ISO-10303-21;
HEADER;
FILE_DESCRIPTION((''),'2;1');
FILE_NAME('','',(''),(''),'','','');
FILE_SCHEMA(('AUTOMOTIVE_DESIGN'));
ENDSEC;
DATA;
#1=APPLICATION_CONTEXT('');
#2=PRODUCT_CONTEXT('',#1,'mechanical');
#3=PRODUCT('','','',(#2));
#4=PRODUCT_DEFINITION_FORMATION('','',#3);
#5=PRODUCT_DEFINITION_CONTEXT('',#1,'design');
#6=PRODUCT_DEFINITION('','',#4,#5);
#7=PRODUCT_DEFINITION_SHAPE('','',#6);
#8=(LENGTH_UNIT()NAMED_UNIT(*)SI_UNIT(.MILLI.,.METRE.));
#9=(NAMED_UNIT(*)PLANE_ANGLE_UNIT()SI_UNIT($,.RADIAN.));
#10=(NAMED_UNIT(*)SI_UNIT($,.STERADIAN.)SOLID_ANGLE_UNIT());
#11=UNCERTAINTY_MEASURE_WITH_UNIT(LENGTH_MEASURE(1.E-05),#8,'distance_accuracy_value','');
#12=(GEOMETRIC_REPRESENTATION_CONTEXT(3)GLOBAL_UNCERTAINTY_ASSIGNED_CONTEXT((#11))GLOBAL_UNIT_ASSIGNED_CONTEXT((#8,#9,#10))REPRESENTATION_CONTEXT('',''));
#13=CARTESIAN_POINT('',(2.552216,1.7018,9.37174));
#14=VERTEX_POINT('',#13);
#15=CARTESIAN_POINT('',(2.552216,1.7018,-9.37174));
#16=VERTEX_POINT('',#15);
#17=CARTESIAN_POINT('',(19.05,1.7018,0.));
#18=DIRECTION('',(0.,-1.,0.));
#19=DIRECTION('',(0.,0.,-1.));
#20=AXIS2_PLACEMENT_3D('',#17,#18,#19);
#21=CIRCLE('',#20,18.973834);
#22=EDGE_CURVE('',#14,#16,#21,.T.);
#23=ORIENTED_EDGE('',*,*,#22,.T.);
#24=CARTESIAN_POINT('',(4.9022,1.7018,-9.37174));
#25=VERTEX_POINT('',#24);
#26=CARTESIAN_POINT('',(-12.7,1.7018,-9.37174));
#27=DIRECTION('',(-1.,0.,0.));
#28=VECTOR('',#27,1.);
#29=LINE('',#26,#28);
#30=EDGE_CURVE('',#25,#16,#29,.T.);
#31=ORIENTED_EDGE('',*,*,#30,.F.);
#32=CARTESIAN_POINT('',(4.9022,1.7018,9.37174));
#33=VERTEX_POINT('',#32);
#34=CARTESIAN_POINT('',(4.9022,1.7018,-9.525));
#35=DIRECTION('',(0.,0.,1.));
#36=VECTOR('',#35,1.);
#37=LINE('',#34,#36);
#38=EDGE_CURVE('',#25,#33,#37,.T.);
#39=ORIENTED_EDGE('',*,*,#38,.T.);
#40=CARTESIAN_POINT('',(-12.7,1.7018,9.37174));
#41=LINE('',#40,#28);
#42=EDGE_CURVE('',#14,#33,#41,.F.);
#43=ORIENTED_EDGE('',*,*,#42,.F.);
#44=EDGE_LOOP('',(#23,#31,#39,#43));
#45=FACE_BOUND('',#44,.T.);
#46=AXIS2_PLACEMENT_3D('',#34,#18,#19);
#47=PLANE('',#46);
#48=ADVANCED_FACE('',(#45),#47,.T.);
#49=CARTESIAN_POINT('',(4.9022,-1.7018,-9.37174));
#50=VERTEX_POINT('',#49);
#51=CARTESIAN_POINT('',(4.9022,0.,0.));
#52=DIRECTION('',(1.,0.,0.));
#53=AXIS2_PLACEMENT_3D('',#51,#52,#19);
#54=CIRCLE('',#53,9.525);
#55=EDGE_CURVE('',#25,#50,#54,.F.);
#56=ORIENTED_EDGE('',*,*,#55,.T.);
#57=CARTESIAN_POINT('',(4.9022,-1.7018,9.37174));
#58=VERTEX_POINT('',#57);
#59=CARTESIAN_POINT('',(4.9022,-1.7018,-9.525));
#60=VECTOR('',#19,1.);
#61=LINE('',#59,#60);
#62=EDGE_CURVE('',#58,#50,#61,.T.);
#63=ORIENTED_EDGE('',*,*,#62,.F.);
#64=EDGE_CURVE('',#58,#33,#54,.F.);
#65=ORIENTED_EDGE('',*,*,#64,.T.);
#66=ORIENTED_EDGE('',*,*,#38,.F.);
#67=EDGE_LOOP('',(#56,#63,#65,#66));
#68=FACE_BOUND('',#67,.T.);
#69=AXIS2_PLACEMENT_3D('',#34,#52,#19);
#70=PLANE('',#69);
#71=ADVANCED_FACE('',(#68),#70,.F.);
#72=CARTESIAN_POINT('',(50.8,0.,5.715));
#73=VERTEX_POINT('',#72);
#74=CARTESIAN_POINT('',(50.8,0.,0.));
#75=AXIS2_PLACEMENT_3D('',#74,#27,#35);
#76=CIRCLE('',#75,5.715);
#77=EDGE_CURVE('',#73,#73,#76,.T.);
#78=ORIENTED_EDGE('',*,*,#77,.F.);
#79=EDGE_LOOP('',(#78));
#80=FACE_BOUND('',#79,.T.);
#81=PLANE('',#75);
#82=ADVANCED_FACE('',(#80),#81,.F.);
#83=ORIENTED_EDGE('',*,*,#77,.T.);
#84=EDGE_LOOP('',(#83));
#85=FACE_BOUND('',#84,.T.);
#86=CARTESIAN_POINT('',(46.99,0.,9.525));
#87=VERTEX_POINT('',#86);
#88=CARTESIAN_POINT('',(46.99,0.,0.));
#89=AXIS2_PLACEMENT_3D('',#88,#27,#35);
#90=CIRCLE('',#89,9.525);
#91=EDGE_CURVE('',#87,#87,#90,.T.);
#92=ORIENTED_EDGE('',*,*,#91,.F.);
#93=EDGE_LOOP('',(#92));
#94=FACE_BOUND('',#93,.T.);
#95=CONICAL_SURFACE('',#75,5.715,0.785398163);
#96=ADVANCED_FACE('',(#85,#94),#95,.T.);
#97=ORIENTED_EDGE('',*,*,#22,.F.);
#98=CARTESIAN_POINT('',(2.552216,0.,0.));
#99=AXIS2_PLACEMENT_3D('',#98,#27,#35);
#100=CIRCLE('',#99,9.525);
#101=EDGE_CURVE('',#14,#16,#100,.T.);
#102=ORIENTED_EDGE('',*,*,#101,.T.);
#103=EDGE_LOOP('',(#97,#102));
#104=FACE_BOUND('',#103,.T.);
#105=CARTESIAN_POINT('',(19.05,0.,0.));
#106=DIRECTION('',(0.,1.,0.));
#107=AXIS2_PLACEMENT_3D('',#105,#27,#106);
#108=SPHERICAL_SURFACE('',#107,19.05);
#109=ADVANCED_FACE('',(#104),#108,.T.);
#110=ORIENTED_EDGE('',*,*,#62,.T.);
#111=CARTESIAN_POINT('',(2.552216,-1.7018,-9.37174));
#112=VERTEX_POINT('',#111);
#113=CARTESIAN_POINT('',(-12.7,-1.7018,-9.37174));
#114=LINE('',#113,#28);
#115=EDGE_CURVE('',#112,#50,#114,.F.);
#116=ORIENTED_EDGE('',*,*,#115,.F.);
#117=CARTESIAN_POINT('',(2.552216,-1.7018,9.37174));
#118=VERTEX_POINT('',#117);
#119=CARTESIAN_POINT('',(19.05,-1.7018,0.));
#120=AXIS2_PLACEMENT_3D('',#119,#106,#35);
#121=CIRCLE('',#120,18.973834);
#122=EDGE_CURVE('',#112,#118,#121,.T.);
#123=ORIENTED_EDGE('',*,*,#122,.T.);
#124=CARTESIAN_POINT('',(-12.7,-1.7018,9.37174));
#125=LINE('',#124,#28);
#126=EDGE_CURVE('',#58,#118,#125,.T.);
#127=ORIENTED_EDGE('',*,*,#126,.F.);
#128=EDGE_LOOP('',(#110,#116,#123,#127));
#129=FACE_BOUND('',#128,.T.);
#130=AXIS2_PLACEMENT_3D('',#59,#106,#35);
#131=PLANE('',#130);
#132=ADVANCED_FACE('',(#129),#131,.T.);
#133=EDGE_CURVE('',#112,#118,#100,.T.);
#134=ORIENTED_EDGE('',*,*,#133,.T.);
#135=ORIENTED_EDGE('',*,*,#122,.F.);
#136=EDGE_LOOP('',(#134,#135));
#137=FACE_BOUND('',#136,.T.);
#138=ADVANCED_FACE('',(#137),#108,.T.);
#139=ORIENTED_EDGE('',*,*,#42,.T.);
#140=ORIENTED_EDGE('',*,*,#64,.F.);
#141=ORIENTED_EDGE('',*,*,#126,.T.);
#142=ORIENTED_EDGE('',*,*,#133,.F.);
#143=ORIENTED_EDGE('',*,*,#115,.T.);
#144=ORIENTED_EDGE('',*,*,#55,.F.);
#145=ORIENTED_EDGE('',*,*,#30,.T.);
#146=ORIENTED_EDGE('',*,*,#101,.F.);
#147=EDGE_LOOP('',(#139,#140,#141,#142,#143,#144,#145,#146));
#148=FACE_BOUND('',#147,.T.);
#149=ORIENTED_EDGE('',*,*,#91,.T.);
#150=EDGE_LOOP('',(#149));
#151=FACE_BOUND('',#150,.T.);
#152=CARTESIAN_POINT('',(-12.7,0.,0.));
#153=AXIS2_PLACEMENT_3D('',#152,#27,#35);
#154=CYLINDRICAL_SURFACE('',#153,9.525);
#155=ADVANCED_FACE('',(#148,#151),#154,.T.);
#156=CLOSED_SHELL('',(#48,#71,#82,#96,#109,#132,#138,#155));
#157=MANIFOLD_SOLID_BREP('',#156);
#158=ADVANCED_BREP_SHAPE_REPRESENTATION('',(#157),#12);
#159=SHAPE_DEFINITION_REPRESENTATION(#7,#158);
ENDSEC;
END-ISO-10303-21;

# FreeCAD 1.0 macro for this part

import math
import FreeCAD as App
import Part
import Sketcher
from FreeCAD import Vector
Q = App.Units.Quantity

doc = App.newDocument("Part")
body = doc.addObject("PartDesign::Body", "Body")

# Sketch on XY plane
sketch1 = body.newObject("Sketcher::SketchObject", "Sketch")
sketch1.AttachmentSupport = (doc.getObject("XY_Plane"), [""])
sketch1.MapMode = "FlatFace"
sketch1.addGeometry([
    Part.LineSegment(Vector(51, 0, 0), Vector(51, 6, 0)),  # 0
    Part.LineSegment(Vector(51, 6, 0), Vector(47, 10, 0)),  # 1
    Part.LineSegment(Vector(47, 10, 0), Vector(3, 10, 0)),  # 2
    Part.ArcOfCircle(Part.Circle(Vector(19, 0, 0), Vector(0, 0, 1), 19), math.radians(150), math.radians(180)),  # 3
    Part.LineSegment(Vector(0, 0, 0), Vector(51, 0, 0)),  # 4
], False)
sketch1.addConstraint([
    Sketcher.Constraint("Coincident", 0, 2, 1, 1),
    Sketcher.Constraint("Coincident", 1, 2, 2, 1),
    Sketcher.Constraint("Coincident", 2, 2, 3, 1),
    Sketcher.Constraint("Coincident", 3, 2, 4, 1),
    Sketcher.Constraint("Coincident", 4, 2, 0, 1),
    Sketcher.Constraint("Vertical", 0),
    Sketcher.Constraint("Horizontal", 2),
    Sketcher.Constraint("Horizontal", 4),
    Sketcher.Constraint("Coincident", 3, 2, -1, 1),
    Sketcher.Constraint("PointOnObject", 3, 3, -1),
    Sketcher.Constraint("DistanceX", 4, 1, 4, 2, Q("2 in")),
    Sketcher.Constraint("Radius", 3, Q("0.75 in")),
    Sketcher.Constraint("Angle", 1, Q("135 deg")),
    Sketcher.Constraint("DistanceX", 3, 3, 1, 2, Q("1.1 in")),
    Sketcher.Constraint("DistanceY", 0, 1, 0, 2, Q("0.225 in")),
])
revolution = body.newObject("PartDesign::Revolution", "Revolution")
revolution.Profile = sketch1
revolution.ReferenceAxis = (sketch1, ["H_Axis"])
revolution.Angle = 360

# Sketch on YZ plane
sketch2 = body.newObject("Sketcher::SketchObject", "Sketch001")
sketch2.AttachmentSupport = (doc.getObject("YZ_Plane"), [""])
sketch2.MapMode = "FlatFace"
sketch2.addGeometry([
    Part.LineSegment(Vector(1.7, 9.5, 0), Vector(-1.7, 9.5, 0)),
    Part.LineSegment(Vector(-1.7, 9.5, 0), Vector(-1.7, -9.5, 0)),
    Part.LineSegment(Vector(-1.7, -9.5, 0), Vector(1.7, -9.5, 0)),
    Part.LineSegment(Vector(1.7, -9.5, 0), Vector(1.7, 9.5, 0)),
], False)
sketch2.addConstraint([
    Sketcher.Constraint("Coincident", 0, 2, 1, 1),
    Sketcher.Constraint("Coincident", 1, 2, 2, 1),
    Sketcher.Constraint("Coincident", 2, 2, 3, 1),
    Sketcher.Constraint("Coincident", 3, 2, 0, 1),
    Sketcher.Constraint("Horizontal", 0),
    Sketcher.Constraint("Vertical", 1),
    Sketcher.Constraint("Horizontal", 2),
    Sketcher.Constraint("Vertical", 3),
    Sketcher.Constraint("Symmetric", 0, 2, 2, 2, -1, 1),
    Sketcher.Constraint("DistanceY", 1, 2, 1, 1, Q("0.75 in")),
    Sketcher.Constraint("DistanceX", 0, 2, 0, 1, Q("0.134 in")),
])
pocket1 = body.newObject("PartDesign::Pocket", "Pocket")
pocket1.Profile = sketch2
pocket1.Length = Q("0.193 in")
pocket1.Reversed = True

doc.recompute()
